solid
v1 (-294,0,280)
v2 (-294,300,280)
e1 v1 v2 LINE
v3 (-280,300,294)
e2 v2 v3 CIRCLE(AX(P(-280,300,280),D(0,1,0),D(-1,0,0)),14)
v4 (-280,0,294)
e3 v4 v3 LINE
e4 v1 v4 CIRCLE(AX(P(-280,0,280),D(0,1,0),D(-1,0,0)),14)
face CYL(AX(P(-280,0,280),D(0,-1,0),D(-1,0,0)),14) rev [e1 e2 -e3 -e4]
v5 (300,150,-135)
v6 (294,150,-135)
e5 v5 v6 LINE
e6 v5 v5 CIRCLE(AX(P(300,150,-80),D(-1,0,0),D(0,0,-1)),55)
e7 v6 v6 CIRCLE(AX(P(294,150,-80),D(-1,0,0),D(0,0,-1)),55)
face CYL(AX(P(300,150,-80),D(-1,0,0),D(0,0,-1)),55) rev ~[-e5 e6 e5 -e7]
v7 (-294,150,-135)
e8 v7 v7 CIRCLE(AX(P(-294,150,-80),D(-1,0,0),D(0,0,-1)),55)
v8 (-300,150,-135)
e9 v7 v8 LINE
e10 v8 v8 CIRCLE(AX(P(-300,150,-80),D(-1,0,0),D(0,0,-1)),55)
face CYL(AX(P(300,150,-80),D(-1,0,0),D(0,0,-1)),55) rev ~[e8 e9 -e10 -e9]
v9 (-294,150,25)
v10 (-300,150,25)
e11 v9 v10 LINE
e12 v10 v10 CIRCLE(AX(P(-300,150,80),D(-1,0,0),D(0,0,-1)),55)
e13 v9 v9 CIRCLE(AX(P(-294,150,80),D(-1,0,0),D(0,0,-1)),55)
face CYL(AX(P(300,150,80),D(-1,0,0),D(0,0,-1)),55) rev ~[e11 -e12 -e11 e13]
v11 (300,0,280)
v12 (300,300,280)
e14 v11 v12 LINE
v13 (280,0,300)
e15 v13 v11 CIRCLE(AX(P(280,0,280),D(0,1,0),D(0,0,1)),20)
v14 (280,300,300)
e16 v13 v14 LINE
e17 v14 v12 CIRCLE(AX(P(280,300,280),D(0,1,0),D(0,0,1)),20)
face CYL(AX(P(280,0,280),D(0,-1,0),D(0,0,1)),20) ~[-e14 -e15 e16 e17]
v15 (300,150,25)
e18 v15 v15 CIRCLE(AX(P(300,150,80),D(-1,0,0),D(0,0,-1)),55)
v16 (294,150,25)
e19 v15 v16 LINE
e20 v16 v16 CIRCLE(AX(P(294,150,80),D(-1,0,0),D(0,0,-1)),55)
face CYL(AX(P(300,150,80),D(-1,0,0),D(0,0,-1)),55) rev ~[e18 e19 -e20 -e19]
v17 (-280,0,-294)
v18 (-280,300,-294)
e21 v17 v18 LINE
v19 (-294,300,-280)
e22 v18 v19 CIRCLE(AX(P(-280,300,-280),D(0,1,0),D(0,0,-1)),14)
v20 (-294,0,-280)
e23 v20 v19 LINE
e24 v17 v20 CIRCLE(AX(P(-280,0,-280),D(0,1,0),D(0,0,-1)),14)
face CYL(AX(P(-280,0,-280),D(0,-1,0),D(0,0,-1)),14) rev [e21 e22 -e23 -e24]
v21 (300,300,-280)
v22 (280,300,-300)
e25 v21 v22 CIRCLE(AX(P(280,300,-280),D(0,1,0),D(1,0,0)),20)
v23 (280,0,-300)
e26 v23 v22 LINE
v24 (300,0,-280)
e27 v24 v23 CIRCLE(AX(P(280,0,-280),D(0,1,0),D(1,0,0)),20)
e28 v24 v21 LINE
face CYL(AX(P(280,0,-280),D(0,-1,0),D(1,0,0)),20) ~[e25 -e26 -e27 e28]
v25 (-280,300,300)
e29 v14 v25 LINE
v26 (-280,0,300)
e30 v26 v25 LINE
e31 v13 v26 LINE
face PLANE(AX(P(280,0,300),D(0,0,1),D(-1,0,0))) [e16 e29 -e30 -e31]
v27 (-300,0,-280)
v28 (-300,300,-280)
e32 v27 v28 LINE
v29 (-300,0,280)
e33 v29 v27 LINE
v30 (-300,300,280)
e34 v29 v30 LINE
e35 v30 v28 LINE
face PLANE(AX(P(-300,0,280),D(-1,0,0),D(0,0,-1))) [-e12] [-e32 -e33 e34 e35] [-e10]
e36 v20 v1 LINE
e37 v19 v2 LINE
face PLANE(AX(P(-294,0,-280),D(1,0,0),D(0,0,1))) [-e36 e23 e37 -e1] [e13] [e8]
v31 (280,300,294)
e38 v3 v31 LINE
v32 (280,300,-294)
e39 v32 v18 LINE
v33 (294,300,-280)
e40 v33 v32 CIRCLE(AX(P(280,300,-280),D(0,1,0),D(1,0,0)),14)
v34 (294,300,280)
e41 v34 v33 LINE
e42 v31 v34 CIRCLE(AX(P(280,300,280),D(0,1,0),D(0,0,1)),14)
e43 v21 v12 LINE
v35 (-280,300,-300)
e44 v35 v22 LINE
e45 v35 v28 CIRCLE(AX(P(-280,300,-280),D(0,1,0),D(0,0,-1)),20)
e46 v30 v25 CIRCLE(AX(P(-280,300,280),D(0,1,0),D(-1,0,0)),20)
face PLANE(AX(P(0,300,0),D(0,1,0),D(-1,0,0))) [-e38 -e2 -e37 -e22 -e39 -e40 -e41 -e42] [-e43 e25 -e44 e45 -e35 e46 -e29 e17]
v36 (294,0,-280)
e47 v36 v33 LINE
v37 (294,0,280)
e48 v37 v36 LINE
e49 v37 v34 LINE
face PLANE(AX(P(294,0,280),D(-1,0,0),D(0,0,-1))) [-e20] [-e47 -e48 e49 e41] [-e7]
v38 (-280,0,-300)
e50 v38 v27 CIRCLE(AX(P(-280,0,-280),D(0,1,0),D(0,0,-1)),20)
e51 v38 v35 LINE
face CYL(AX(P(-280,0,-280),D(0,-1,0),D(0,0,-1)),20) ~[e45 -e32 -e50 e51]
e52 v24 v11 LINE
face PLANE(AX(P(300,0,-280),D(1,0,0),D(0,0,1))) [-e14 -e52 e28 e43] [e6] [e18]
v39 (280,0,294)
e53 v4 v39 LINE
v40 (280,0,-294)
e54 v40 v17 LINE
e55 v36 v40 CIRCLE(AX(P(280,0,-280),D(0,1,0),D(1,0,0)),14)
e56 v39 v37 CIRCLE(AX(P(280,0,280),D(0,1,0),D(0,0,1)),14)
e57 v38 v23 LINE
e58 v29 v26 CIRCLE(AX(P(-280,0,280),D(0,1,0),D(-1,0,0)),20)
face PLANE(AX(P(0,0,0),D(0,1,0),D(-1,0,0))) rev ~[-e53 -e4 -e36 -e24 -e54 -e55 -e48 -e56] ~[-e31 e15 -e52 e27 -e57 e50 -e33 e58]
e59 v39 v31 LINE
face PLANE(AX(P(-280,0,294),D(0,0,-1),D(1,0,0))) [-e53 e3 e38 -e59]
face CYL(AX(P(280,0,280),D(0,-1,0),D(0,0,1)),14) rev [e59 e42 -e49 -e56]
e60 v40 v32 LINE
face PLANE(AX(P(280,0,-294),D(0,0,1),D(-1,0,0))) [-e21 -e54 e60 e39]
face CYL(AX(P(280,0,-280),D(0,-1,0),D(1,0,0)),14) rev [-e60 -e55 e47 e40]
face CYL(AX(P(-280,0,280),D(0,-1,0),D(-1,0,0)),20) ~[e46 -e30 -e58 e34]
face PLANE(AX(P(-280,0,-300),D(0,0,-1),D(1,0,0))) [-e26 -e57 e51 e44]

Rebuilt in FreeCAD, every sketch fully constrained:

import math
import FreeCAD as App
import Part
import Sketcher

V = App.Vector
Q = App.Units.Quantity

doc = App.newDocument("Part")
body = doc.addObject("PartDesign::Body", "Body")

sketch1 = body.newObject("Sketcher::SketchObject", "Sketch")
sketch1.AttachmentSupport = (doc.getObject("XZ_Plane"), [""])
sketch1.MapMode = "FlatFace"
sketch1.addGeometry([
    Part.LineSegment(V(-280, 300, 0), V(280, 300, 0)),
    Part.ArcOfCircle(Part.Circle(V(280, 280, 0), V(0, 0, 1), 20), math.radians(0), math.radians(90)),
    Part.LineSegment(V(300, 280, 0), V(300, -280, 0)),
    Part.ArcOfCircle(Part.Circle(V(280, -280, 0), V(0, 0, 1), 20), math.radians(-90), math.radians(0)),
    Part.LineSegment(V(280, -300, 0), V(-280, -300, 0)),
    Part.ArcOfCircle(Part.Circle(V(-280, -280, 0), V(0, 0, 1), 20), math.radians(180), math.radians(270)),
    Part.LineSegment(V(-300, -280, 0), V(-300, 280, 0)),
    Part.ArcOfCircle(Part.Circle(V(-280, 280, 0), V(0, 0, 1), 20), math.radians(90), math.radians(180)),
    Part.LineSegment(V(280, 294, 0), V(-280, 294, 0)),
    Part.ArcOfCircle(Part.Circle(V(-280, 280, 0), V(0, 0, 1), 14), math.radians(90), math.radians(180)),
    Part.LineSegment(V(-294, 280, 0), V(-294, -280, 0)),
    Part.ArcOfCircle(Part.Circle(V(-280, -280, 0), V(0, 0, 1), 14), math.radians(180), math.radians(270)),
    Part.LineSegment(V(-280, -294, 0), V(280, -294, 0)),
    Part.ArcOfCircle(Part.Circle(V(280, -280, 0), V(0, 0, 1), 14), math.radians(-90), math.radians(0)),
    Part.LineSegment(V(294, -280, 0), V(294, 280, 0)),
    Part.ArcOfCircle(Part.Circle(V(280, 280, 0), V(0, 0, 1), 14), math.radians(0), math.radians(90)),
], False)
sketch1.addConstraint([
    Sketcher.Constraint("Tangent", 0, 2, 1, 2),
    Sketcher.Constraint("Tangent", 1, 1, 2, 1),
    Sketcher.Constraint("Tangent", 2, 2, 3, 2),
    Sketcher.Constraint("Tangent", 3, 1, 4, 1),
    Sketcher.Constraint("Tangent", 4, 2, 5, 2),
    Sketcher.Constraint("Tangent", 5, 1, 6, 1),
    Sketcher.Constraint("Tangent", 6, 2, 7, 2),
    Sketcher.Constraint("Tangent", 7, 1, 0, 1),
    Sketcher.Constraint("Tangent", 8, 2, 9, 1),
    Sketcher.Constraint("Tangent", 9, 2, 10, 1),
    Sketcher.Constraint("Tangent", 10, 2, 11, 1),
    Sketcher.Constraint("Tangent", 11, 2, 12, 1),
    Sketcher.Constraint("Tangent", 12, 2, 13, 1),
    Sketcher.Constraint("Tangent", 13, 2, 14, 1),
    Sketcher.Constraint("Tangent", 14, 2, 15, 1),
    Sketcher.Constraint("Tangent", 15, 2, 8, 1),
    Sketcher.Constraint("Horizontal", 0),
    Sketcher.Constraint("Vertical", 2),
    Sketcher.Constraint("Horizontal", 4),
    Sketcher.Constraint("Vertical", 6),
    Sketcher.Constraint("Horizontal", 8),
    Sketcher.Constraint("Vertical", 10),
    Sketcher.Constraint("Horizontal", 12),
    Sketcher.Constraint("Vertical", 14),
    Sketcher.Constraint("Coincident", 9, 3, 7, 3),
    Sketcher.Constraint("Coincident", 11, 3, 5, 3),
    Sketcher.Constraint("Coincident", 13, 3, 3, 3),
    Sketcher.Constraint("Equal", 1, 3),
    Sketcher.Constraint("Equal", 3, 5),
    Sketcher.Constraint("Equal", 5, 7),
    Sketcher.Constraint("Equal", 13, 15),
    Sketcher.Constraint("Symmetric", 1, 3, 5, 3, -1, 1),
    Sketcher.Constraint("Equal", 12, 2),
    Sketcher.Constraint("Radius", 1, Q("20 mm")),
    Sketcher.Constraint("Radius", 9, Q("14 mm")),
    Sketcher.Constraint("DistanceX", 0, 1, 0, 2, Q("560 mm")),
])
pad1 = body.newObject("PartDesign::Pad", "Pad")
pad1.Profile = sketch1
pad1.Length = 300
pad1.Reversed = True

sketch2 = body.newObject("Sketcher::SketchObject", "Sketch001")
sketch2.AttachmentSupport = (doc.getObject("YZ_Plane"), [""])
sketch2.MapMode = "FlatFace"
sketch2.AttachmentOffset = App.Placement(V(0, 0, 300), App.Rotation())
sketch2.addGeometry([
    Part.Circle(V(150, 80, 0), V(0, 0, 1), 55),
    Part.Circle(V(150, -80, 0), V(0, 0, 1), 55),
], False)
sketch2.addConstraint([
    Sketcher.Constraint("Equal", 0, 1),
    Sketcher.Constraint("Symmetric", 0, 3, 1, 3, -1),
    Sketcher.Constraint("Diameter", 0, Q("110 mm")),
    Sketcher.Constraint("DistanceX", -1, 1, 0, 3, Q("150 mm")),
    Sketcher.Constraint("DistanceY", -1, 1, 0, 3, Q("80 mm")),
])
doc.recompute()
hole = body.newObject("PartDesign::Hole", "Hole")
hole.Profile = sketch2
hole.ThreadType = "None"
hole.Diameter = 110
hole.DepthType = "ThroughAll"

doc.recompute()
